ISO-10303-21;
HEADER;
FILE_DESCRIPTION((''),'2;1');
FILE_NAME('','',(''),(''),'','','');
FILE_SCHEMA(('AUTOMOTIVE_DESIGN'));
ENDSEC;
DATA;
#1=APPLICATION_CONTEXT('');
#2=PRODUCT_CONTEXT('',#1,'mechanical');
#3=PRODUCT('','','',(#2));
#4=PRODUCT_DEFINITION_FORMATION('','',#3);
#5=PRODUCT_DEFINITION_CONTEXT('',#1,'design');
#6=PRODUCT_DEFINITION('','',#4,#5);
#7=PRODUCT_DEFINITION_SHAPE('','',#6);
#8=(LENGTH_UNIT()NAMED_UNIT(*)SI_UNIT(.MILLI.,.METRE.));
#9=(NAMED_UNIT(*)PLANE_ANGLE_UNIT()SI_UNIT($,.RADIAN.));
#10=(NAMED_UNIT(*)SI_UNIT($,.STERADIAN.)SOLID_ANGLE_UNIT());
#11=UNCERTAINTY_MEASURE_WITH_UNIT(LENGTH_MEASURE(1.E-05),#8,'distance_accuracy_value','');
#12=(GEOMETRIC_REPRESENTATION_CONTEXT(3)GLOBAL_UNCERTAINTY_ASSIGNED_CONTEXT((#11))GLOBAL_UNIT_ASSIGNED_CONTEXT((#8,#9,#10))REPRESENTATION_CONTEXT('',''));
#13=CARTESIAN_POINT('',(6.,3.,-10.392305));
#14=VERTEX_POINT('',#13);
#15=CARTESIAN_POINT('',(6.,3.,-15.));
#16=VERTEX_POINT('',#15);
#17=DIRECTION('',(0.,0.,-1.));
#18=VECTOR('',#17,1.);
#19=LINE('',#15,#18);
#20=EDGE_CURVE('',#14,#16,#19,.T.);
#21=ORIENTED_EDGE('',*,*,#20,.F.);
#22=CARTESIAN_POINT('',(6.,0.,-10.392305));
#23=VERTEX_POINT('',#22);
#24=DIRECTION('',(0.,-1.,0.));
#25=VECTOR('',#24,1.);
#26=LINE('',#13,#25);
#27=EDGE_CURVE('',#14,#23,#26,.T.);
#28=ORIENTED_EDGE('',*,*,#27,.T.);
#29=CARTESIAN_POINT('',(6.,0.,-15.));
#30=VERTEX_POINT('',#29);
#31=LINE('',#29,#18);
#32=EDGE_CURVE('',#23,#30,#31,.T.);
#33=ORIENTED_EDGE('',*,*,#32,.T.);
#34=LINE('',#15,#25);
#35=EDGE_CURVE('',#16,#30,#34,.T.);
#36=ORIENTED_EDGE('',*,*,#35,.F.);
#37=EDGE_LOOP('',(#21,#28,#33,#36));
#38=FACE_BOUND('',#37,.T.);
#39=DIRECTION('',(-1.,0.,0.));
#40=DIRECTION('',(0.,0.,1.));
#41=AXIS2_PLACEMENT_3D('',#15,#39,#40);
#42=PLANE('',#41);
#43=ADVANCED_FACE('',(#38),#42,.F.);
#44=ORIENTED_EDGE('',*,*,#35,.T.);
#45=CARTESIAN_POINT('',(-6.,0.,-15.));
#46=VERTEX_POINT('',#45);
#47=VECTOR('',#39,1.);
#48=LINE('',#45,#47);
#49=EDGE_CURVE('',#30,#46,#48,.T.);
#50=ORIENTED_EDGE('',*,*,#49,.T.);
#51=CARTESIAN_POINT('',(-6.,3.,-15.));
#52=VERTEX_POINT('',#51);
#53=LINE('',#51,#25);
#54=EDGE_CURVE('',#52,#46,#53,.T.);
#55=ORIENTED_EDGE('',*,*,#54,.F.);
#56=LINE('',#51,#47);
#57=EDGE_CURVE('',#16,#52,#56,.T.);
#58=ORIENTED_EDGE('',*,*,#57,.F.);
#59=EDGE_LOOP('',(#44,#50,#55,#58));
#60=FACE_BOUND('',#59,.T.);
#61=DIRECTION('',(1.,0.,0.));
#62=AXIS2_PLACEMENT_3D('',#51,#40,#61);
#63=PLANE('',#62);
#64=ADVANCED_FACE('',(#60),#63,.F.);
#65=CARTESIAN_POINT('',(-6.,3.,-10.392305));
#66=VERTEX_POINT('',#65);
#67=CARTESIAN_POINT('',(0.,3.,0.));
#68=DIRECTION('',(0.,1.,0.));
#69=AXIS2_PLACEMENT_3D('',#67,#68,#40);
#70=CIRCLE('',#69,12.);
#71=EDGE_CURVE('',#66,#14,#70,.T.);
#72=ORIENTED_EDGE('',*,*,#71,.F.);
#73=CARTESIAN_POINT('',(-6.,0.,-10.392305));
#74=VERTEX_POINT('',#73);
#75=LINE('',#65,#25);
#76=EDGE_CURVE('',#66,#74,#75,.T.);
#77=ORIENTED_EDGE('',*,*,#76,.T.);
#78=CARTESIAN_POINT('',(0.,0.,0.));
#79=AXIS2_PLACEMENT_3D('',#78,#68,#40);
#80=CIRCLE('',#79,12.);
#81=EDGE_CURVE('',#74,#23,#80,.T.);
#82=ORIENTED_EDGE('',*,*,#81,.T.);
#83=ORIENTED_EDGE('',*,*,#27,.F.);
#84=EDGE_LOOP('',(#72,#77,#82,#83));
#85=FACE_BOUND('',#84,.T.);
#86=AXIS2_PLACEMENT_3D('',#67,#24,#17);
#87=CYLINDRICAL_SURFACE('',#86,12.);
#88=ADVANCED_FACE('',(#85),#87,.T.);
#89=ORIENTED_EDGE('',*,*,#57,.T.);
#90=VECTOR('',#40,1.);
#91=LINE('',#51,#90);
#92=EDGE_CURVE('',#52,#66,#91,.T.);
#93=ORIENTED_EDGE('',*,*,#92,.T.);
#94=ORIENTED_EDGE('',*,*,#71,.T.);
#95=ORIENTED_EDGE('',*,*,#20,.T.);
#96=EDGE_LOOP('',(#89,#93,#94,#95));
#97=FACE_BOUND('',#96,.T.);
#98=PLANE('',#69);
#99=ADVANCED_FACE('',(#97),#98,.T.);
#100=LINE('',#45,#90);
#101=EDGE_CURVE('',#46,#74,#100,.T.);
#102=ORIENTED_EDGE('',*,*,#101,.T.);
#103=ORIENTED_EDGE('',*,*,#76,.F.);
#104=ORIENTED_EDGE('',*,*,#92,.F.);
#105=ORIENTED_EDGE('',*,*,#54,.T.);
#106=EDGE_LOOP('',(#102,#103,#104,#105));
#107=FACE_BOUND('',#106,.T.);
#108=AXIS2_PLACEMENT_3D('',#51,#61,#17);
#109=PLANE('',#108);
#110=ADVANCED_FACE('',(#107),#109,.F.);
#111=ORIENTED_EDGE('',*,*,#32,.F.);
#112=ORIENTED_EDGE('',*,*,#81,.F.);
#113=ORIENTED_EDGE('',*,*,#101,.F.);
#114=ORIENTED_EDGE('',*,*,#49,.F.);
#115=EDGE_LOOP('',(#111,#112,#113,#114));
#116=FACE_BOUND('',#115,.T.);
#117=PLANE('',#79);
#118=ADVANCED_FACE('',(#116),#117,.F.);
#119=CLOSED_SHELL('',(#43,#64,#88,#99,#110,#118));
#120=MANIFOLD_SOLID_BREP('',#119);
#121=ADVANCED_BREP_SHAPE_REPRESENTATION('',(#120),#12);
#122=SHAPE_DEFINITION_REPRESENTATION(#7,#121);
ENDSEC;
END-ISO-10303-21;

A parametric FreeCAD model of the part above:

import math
import FreeCAD as App
import Part
import Sketcher

V = App.Vector

doc = App.newDocument("Part")
body = doc.addObject("PartDesign::Body", "Body")

# Sketch on XZ plane
sketch1 = doc.addObject("Sketcher::SketchObject", "Sketch")
body.addObject(sketch1)
sketch1.AttachmentSupport = (doc.XZ_Plane, [""])
sketch1.MapMode = "FlatFace"
sketch1.addGeometry([
    Part.LineSegment(V(6, -15, 0), V(-6, -15, 0)),
    Part.LineSegment(V(-6, -15, 0), V(-6, -10.4, 0)),
    Part.ArcOfCircle(Part.Circle(V(0, 0, 0), V(0, 0, 1), 12), math.radians(-60), math.radians(240)),
    Part.LineSegment(V(6, -10.4, 0), V(6, -15, 0)),
], False)
sketch1.addConstraint([
    Sketcher.Constraint("Coincident", 0, 2, 1, 1),
    Sketcher.Constraint("Coincident", 1, 2, 2, 2),
    Sketcher.Constraint("Coincident", 2, 1, 3, 1),
    Sketcher.Constraint("Coincident", 3, 2, 0, 1),
    Sketcher.Constraint("Horizontal", 0),
    Sketcher.Constraint("Vertical", 1),
    Sketcher.Constraint("Vertical", 3),
    Sketcher.Constraint("Coincident", 2, 3, -1, 1),
    Sketcher.Constraint("Horizontal", 1, 2, 2, 1),
    Sketcher.Constraint("Radius", 2, 12.0),
    Sketcher.Constraint("DistanceX", 0, 2, 0, 1, 12.0),
    Sketcher.Constraint("DistanceY", 0, 2, -1, 1, 15.0),
])
pad1 = doc.addObject("PartDesign::Pad", "Pad")
body.addObject(pad1)
pad1.Profile = sketch1
pad1.Length = 3
pad1.Reversed = True

doc.recompute()
